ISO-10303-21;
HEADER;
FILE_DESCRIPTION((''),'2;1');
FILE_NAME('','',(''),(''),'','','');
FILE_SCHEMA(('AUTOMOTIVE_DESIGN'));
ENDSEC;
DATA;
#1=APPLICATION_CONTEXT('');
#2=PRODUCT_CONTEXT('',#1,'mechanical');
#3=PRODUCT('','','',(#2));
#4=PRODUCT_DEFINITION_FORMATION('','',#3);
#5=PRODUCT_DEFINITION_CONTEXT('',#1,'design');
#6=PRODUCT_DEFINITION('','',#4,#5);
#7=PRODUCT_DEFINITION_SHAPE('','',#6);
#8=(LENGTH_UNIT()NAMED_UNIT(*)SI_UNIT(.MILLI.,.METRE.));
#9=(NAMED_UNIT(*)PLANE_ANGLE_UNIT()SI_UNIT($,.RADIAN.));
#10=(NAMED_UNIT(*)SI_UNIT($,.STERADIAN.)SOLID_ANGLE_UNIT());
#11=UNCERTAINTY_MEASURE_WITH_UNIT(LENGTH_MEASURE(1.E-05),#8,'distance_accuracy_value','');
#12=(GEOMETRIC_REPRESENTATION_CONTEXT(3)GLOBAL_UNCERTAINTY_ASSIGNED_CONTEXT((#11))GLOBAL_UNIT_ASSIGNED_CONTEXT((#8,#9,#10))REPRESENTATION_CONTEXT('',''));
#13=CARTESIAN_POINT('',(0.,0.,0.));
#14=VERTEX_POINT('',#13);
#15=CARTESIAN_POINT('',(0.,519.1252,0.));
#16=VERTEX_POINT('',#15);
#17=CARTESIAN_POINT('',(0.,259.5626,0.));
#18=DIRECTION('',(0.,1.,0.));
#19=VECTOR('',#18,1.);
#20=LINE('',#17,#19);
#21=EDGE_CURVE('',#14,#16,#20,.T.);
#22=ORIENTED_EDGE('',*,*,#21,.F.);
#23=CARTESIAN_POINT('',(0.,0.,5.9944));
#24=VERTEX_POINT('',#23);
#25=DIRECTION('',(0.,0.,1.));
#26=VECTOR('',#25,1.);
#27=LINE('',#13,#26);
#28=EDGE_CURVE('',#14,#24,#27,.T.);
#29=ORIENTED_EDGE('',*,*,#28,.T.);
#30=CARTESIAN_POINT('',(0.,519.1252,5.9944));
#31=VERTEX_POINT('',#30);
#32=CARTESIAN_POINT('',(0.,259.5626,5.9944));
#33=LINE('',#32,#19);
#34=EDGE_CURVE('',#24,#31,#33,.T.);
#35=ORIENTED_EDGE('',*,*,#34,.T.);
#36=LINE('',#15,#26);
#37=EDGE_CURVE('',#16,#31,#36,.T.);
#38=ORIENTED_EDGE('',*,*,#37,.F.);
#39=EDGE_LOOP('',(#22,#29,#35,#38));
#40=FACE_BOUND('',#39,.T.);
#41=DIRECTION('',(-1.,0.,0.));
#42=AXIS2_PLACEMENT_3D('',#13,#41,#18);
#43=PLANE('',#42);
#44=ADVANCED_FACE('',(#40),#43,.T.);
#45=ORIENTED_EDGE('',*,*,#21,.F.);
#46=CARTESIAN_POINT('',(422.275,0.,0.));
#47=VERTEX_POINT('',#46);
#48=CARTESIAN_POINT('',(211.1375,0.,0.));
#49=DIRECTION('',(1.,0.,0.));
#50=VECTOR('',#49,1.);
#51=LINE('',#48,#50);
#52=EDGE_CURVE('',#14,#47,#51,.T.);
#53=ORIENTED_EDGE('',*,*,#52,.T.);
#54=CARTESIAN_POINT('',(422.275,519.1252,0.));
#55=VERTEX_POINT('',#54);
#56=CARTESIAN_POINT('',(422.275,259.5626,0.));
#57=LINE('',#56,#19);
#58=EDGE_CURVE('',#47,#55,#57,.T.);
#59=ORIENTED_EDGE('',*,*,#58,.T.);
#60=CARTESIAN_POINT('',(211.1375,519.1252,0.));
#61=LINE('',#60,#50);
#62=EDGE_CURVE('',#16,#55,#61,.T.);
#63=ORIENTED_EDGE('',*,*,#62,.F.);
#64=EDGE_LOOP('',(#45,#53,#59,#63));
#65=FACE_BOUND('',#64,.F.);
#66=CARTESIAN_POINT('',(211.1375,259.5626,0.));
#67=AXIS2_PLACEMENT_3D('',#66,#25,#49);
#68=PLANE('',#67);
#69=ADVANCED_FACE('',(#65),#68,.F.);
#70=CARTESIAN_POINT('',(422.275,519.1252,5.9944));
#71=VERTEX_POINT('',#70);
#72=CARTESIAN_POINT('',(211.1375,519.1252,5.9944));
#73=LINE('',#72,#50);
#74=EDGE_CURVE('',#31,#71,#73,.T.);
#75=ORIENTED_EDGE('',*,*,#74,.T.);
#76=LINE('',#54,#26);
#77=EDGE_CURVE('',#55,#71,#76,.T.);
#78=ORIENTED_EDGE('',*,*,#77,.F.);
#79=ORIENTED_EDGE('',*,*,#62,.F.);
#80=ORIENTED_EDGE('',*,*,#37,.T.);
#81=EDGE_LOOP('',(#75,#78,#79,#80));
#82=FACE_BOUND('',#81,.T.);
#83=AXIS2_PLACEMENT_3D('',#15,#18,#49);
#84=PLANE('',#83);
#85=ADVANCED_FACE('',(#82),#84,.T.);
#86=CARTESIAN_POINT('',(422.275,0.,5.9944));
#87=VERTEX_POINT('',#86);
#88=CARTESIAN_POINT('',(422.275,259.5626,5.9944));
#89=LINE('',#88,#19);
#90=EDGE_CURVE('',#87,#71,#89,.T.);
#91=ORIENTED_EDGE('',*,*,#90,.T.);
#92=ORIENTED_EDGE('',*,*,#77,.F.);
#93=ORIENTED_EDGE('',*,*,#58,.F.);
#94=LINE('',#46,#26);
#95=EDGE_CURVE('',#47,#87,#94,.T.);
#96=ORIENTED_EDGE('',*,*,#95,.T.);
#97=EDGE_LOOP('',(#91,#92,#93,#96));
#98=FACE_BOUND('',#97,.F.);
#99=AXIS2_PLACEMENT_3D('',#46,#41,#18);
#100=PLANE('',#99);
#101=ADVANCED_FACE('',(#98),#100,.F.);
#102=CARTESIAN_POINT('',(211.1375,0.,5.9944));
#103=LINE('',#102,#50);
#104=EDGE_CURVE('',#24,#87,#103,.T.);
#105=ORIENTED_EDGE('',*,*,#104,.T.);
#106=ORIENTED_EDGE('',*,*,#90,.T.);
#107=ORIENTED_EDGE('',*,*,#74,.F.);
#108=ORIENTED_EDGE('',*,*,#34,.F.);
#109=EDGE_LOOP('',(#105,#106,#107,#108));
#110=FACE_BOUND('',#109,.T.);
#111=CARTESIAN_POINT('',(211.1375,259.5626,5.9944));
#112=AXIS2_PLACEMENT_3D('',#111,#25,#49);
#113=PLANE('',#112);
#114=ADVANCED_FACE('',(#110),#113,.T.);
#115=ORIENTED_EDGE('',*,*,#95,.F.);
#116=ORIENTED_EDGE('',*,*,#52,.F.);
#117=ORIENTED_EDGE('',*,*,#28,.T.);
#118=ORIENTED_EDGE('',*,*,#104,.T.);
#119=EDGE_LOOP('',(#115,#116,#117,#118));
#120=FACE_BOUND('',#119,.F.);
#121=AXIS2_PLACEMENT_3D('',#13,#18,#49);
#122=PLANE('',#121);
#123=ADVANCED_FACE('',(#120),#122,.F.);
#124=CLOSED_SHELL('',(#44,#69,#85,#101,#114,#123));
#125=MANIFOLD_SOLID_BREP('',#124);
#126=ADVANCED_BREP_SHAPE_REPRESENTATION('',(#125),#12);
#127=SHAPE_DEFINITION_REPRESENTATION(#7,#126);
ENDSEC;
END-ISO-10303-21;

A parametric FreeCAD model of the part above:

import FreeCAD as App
import Part
import Sketcher

V = App.Vector
Q = App.Units.Quantity


def add_polygon(sketch, points):
    """Adds a closed chain of lines whose ends are joined by coincident constraints."""
    first, n = sketch.GeometryCount, len(points)
    for a, b in zip(points, points[1:] + points[:1]):
        sketch.addGeometry(Part.LineSegment(App.Vector(*a, 0), App.Vector(*b, 0)), False)
    for i in range(n):
        sketch.addConstraint(Sketcher.Constraint("Coincident", first + i, 2, first + (i + 1) % n, 1))

doc = App.newDocument("Part")
body = doc.addObject("PartDesign::Body", "Body")

sketch1 = body.newObject("Sketcher::SketchObject", "Sketch")
sketch1.AttachmentSupport = (doc.getObject("XY_Plane"), [""])
sketch1.MapMode = "FlatFace"
add_polygon(sketch1, [(0, 519), (0, 0), (422, 0), (422, 519)])
sketch1.addConstraint(Sketcher.Constraint("Vertical", 0))
sketch1.addConstraint(Sketcher.Constraint("Horizontal", 1))
sketch1.addConstraint(Sketcher.Constraint("Vertical", 2))
sketch1.addConstraint(Sketcher.Constraint("Horizontal", 3))
sketch1.addConstraint(Sketcher.Constraint("Coincident", 0, 2, -1, 1))
sketch1.addConstraint(Sketcher.Constraint("DistanceX", 1, 1, 1, 2, Q("16.625 in")))
sketch1.addConstraint(Sketcher.Constraint("DistanceY", 0, 2, 0, 1, Q("20.438 in")))
pad1 = body.newObject("PartDesign::Pad", "Pad")
pad1.Profile = sketch1
pad1.Length = Q("0.236 in")

doc.recompute()
